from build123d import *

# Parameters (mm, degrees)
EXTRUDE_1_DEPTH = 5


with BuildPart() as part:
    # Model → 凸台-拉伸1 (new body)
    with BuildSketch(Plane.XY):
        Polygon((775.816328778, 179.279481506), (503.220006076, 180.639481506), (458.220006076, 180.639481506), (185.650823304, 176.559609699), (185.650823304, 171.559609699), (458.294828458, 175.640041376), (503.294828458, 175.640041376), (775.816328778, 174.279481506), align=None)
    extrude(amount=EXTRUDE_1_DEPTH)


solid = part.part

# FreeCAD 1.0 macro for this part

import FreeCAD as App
import Part
import Sketcher

doc = App.newDocument("Part")
body = doc.addObject("PartDesign::Body", "Body")

# Sketch on XY plane
sketch1 = body.newObject("Sketcher::SketchObject", "Sketch")
sketch1.AttachmentSupport = (doc.getObject("XY_Plane"), [""])
sketch1.MapMode = "FlatFace"
sketch1.addGeometry([
    Part.LineSegment(App.Vector(776, 179, 0), App.Vector(503, 181, 0)),  # 0
    Part.LineSegment(App.Vector(503, 181, 0), App.Vector(458, 181, 0)),  # 1
    Part.LineSegment(App.Vector(458, 181, 0), App.Vector(186, 177, 0)),  # 2
    Part.LineSegment(App.Vector(186, 177, 0), App.Vector(186, 172, 0)),  # 3
    Part.LineSegment(App.Vector(186, 172, 0), App.Vector(458, 176, 0)),  # 4
    Part.LineSegment(App.Vector(458, 176, 0), App.Vector(503, 176, 0)),  # 5
    Part.LineSegment(App.Vector(503, 176, 0), App.Vector(776, 174, 0)),  # 6
    Part.LineSegment(App.Vector(776, 174, 0), App.Vector(776, 179, 0)),  # 7
], False)
sketch1.addConstraint([
    Sketcher.Constraint("Coincident", 0, 2, 1, 1),
    Sketcher.Constraint("Coincident", 1, 2, 2, 1),
    Sketcher.Constraint("Coincident", 2, 2, 3, 1),
    Sketcher.Constraint("Coincident", 3, 2, 4, 1),
    Sketcher.Constraint("Coincident", 4, 2, 5, 1),
    Sketcher.Constraint("Coincident", 5, 2, 6, 1),
    Sketcher.Constraint("Coincident", 6, 2, 7, 1),
    Sketcher.Constraint("Coincident", 7, 2, 0, 1),
    Sketcher.Constraint("Horizontal", 1),
    Sketcher.Constraint("Vertical", 3),
    Sketcher.Constraint("Horizontal", 5),
    Sketcher.Constraint("Vertical", 7),
    Sketcher.Constraint("Equal", 1, 5),
    Sketcher.Constraint("Equal", 3, 7),
    Sketcher.Constraint("Equal", 0, 2),
    Sketcher.Constraint("DistanceX", 1, 2, 1, 1, 45.0),
    Sketcher.Constraint("DistanceY", 3, 2, 3, 1, 5.0),
    Sketcher.Constraint("DistanceY", 6, 2, 0, 2, 6.36),
    Sketcher.Constraint("DistanceX", 5, 2, 6, 2, 272.5215),
    Sketcher.Constraint("DistanceY", -1, 1, 0, 2, 180.639482),
    Sketcher.Constraint("DistanceY", -1, 1, 2, 2, 176.55961),
    Sketcher.Constraint("DistanceX", -1, 1, 4, 2, 458.294828),
    Sketcher.Constraint("DistanceY", -1, 1, 4, 2, 175.640041),
    Sketcher.Constraint("Distance", 0, 272.599715),
])
pad1 = body.newObject("PartDesign::Pad", "Pad")
pad1.Profile = sketch1
pad1.Length = 5

doc.recompute()
